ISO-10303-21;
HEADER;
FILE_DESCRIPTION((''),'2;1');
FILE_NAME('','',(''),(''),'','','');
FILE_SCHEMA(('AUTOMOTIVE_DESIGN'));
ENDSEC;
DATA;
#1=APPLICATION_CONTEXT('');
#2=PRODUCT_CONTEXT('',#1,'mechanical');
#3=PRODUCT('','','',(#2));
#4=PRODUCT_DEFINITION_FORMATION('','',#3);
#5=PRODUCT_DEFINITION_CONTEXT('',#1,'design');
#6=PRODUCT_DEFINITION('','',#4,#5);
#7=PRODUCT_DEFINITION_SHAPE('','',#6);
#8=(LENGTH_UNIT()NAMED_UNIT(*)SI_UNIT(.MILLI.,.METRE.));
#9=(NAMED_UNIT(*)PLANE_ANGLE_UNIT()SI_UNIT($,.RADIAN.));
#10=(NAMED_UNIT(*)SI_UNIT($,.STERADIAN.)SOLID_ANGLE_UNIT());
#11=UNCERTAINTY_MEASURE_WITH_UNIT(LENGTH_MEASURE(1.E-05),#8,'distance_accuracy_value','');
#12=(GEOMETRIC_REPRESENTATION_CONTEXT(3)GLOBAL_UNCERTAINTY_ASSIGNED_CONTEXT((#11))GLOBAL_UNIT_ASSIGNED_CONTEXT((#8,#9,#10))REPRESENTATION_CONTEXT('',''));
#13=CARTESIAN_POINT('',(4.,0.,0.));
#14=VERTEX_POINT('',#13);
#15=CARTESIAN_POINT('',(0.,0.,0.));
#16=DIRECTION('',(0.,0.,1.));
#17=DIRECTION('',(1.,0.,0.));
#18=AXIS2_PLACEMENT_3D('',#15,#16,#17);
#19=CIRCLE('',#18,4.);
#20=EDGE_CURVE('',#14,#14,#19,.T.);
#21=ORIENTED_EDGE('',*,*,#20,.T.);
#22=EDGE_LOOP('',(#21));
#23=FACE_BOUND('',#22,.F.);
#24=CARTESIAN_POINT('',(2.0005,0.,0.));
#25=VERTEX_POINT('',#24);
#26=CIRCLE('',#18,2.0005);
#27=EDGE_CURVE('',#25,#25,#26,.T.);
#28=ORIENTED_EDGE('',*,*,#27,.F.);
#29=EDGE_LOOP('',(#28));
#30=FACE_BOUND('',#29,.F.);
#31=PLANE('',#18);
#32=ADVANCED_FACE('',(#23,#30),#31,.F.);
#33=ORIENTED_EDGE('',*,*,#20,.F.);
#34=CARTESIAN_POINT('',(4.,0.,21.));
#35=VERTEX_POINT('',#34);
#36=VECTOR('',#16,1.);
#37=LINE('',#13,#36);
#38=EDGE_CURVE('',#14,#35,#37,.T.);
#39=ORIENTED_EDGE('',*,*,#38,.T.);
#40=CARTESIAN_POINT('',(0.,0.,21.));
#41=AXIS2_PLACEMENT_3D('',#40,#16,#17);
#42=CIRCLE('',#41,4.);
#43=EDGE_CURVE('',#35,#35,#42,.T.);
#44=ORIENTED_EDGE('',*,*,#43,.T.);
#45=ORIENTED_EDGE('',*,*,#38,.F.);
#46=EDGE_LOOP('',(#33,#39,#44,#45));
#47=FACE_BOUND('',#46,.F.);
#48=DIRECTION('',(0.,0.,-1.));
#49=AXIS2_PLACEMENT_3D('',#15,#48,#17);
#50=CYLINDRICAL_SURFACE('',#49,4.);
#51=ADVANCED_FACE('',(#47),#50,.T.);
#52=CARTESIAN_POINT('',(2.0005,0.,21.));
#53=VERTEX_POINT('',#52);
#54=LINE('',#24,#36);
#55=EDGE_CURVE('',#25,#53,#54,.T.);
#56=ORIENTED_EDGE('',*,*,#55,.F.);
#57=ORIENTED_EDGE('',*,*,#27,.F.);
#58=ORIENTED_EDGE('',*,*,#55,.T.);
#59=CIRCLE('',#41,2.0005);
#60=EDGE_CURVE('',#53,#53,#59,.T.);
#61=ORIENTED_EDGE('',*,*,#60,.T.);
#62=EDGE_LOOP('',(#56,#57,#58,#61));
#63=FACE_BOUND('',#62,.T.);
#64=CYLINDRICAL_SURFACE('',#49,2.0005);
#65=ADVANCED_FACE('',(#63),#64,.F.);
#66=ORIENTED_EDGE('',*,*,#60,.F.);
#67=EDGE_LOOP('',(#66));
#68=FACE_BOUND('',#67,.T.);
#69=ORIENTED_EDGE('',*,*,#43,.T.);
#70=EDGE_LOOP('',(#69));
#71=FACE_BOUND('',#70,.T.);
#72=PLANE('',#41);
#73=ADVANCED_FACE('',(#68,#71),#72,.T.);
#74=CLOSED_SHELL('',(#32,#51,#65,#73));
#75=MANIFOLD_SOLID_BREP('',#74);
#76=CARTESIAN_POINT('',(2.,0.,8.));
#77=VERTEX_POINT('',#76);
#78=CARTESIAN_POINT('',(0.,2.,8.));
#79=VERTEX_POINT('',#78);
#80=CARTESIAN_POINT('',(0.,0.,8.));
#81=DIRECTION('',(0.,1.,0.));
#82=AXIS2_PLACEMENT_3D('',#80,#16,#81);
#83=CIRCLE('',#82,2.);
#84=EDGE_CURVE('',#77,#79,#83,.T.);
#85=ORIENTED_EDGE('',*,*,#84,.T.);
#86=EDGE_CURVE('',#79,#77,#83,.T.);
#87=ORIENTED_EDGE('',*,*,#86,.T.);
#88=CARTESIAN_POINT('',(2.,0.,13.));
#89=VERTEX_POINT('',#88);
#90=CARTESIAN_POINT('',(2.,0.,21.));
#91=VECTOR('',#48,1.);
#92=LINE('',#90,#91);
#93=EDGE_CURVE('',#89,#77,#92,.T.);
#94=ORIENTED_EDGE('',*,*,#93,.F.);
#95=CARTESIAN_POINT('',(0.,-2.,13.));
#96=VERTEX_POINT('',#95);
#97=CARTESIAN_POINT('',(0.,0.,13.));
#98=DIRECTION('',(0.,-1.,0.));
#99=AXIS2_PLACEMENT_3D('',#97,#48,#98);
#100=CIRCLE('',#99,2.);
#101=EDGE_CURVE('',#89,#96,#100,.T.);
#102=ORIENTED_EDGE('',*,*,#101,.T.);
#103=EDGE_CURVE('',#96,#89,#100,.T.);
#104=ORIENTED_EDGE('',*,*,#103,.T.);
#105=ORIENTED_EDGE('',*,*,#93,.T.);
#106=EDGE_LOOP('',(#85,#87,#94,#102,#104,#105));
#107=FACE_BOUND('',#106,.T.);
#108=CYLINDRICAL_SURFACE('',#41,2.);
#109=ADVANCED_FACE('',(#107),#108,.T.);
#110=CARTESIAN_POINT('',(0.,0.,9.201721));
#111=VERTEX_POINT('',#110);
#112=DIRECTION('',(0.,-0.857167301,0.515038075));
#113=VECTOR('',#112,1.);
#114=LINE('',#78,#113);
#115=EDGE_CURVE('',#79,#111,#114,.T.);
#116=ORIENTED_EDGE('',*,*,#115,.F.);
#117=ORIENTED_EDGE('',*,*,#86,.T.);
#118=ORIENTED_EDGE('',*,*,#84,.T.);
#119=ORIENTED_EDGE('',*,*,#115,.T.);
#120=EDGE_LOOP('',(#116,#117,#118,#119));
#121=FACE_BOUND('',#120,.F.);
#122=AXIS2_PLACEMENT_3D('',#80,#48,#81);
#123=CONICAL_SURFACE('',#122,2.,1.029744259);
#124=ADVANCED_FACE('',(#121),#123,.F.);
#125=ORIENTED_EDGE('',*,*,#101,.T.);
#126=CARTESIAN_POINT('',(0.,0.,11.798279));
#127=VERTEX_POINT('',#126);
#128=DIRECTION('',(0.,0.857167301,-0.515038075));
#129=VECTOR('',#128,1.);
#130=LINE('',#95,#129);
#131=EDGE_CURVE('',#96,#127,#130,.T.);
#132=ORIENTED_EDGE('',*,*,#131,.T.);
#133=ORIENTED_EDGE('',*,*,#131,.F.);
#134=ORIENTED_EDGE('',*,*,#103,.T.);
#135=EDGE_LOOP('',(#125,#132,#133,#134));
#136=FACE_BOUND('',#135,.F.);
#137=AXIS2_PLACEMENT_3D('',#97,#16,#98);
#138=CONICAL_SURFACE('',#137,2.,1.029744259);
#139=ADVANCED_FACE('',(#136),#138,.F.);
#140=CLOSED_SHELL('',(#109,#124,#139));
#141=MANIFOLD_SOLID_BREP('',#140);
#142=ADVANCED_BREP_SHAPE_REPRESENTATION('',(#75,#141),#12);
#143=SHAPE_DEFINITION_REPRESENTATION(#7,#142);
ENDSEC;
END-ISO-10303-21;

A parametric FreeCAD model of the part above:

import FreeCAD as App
import Part
import Sketcher

doc = App.newDocument("Part")
body = doc.addObject("PartDesign::Body", "Body")
body.AllowCompound = True

# Sketch on XY plane
sketch1 = doc.addObject("Sketcher::SketchObject", "Sketch")
body.addObject(sketch1)
sketch1.AttachmentSupport = (doc.XY_Plane, [""])
sketch1.MapMode = "FlatFace"
sketch1.addGeometry(Part.Circle(App.Vector(0, 0, 0), App.Vector(0, 0, 1), 4), False)
sketch1.addGeometry(Part.Circle(App.Vector(0, 0, 0), App.Vector(0, 0, 1), 2), False)
sketch1.addConstraint(Sketcher.Constraint("Coincident", 0, 3, -1, 1))
sketch1.addConstraint(Sketcher.Constraint("Coincident", 1, 3, -1, 1))
sketch1.addConstraint(Sketcher.Constraint("Diameter", 0, 8.0))
sketch1.addConstraint(Sketcher.Constraint("Diameter", 1, 4.001))
pad1 = doc.addObject("PartDesign::Pad", "Pad")
body.addObject(pad1)
pad1.Profile = sketch1
pad1.Length = 21

# Sketch on XY plane
sketch2 = doc.addObject("Sketcher::SketchObject", "Sketch001")
body.addObject(sketch2)
sketch2.AttachmentSupport = (doc.XY_Plane, [""])
sketch2.MapMode = "FlatFace"
sketch2.AttachmentOffset = App.Placement(App.Vector(0, 0, 21), App.Rotation())
sketch2.addGeometry(Part.Circle(App.Vector(0, 0, 0), App.Vector(0, 0, 1), 2), False)
sketch2.addConstraint(Sketcher.Constraint("Coincident", 0, 3, -1, 1))
sketch2.addConstraint(Sketcher.Constraint("Diameter", 0, 4.0))
pad2 = doc.addObject("PartDesign::Pad", "Pad001")
body.addObject(pad2)
pad2.Profile = sketch2
pad2.Length = 20
pad2.Reversed = True

# Sketch on XY plane
sketch3 = doc.addObject("Sketcher::SketchObject", "Sketch002")
body.addObject(sketch3)
sketch3.AttachmentSupport = (doc.XY_Plane, [""])
sketch3.MapMode = "FlatFace"
sketch3.AttachmentOffset = App.Placement(App.Vector(0, 0, 21), App.Rotation())
sketch3.addGeometry(Part.Circle(App.Vector(0, 0, 0), App.Vector(0, 0, 1), 2), False)
sketch3.addConstraint(Sketcher.Constraint("Coincident", 0, 3, -1, 1))
sketch3.addConstraint(Sketcher.Constraint("Diameter", 0, 4.0))
doc.recompute()
hole = doc.addObject("PartDesign::Hole", "Hole")
body.addObject(hole)
hole.Profile = sketch3
hole.ThreadType = "None"
hole.Diameter = 4
hole.DepthType = "Dimension"
hole.Depth = 8
hole.DrillPoint = "Angled"
hole.DrillPointAngle = 118

# Sketch on XY plane
sketch4 = doc.addObject("Sketcher::SketchObject", "Sketch003")
body.addObject(sketch4)
sketch4.AttachmentSupport = (doc.XY_Plane, [""])
sketch4.MapMode = "FlatFace"
sketch4.addGeometry(Part.Circle(App.Vector(0, 0, 0), App.Vector(0, 0, 1), 2), False)
sketch4.addConstraint(Sketcher.Constraint("Coincident", 0, 3, -1, 1))
sketch4.addConstraint(Sketcher.Constraint("Diameter", 0, 4.0))
doc.recompute()
hole2 = doc.addObject("PartDesign::Hole", "Hole001")
body.addObject(hole2)
hole2.Profile = sketch4
hole2.ThreadType = "None"
hole2.Diameter = 4
hole2.DepthType = "Dimension"
hole2.Depth = 8
hole2.DrillPoint = "Angled"
hole2.DrillPointAngle = 118
hole2.Reversed = True

doc.recompute()
